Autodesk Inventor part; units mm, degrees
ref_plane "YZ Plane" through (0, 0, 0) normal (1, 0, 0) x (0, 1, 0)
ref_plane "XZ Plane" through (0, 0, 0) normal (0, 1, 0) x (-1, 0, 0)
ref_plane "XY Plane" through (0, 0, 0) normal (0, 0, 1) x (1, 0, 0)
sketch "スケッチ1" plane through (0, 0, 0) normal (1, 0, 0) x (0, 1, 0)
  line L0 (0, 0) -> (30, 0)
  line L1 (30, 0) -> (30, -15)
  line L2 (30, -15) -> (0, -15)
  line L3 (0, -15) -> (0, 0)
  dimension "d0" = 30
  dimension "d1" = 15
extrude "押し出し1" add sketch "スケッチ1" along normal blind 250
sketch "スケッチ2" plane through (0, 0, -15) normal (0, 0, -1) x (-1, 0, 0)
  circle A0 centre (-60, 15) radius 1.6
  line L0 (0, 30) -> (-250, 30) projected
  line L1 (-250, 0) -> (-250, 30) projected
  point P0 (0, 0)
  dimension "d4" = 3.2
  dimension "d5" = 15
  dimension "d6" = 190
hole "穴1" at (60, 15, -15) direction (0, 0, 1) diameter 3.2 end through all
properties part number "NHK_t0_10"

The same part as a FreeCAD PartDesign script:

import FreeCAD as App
import Part
import Sketcher
from FreeCAD import Vector


def add_polygon(sketch, points):
    """Adds a closed chain of lines whose ends are joined by coincident constraints."""
    first, n = sketch.GeometryCount, len(points)
    for a, b in zip(points, points[1:] + points[:1]):
        sketch.addGeometry(Part.LineSegment(App.Vector(*a, 0), App.Vector(*b, 0)), False)
    for i in range(n):
        sketch.addConstraint(Sketcher.Constraint("Coincident", first + i, 2, first + (i + 1) % n, 1))

doc = App.newDocument("Part")
body = doc.addObject("PartDesign::Body", "Body")

# Sketch on YZ plane
sketch1 = body.newObject("Sketcher::SketchObject", "Sketch")
sketch1.AttachmentSupport = (doc.getObject("YZ_Plane"), [""])
sketch1.MapMode = "FlatFace"
add_polygon(sketch1, [(30, 0), (0, 0), (0, -15), (30, -15)])  # lines 0-3
sketch1.addConstraint(Sketcher.Constraint("Horizontal", 0))
sketch1.addConstraint(Sketcher.Constraint("Vertical", 1))
sketch1.addConstraint(Sketcher.Constraint("Horizontal", 2))
sketch1.addConstraint(Sketcher.Constraint("Vertical", 3))
sketch1.addConstraint(Sketcher.Constraint("Coincident", 0, 2, -1, 1))
sketch1.addConstraint(Sketcher.Constraint("DistanceX", 0, 2, 0, 1, 30.0))
sketch1.addConstraint(Sketcher.Constraint("DistanceY", 1, 2, 1, 1, 15.0))
pad1 = body.newObject("PartDesign::Pad", "Pad")
pad1.Profile = sketch1
pad1.Length = 250

# Sketch on XY plane
sketch2 = body.newObject("Sketcher::SketchObject", "Sketch001")
sketch2.AttachmentSupport = (doc.getObject("XY_Plane"), [""])
sketch2.MapMode = "FlatFace"
sketch2.AttachmentOffset = App.Placement(Vector(0, 0, -15), App.Rotation())
sketch2.addGeometry(Part.Circle(Vector(60, 15, 0), Vector(0, 0, 1), 1.6), False)
sketch2.addConstraint(Sketcher.Constraint("Diameter", 0, 3.2))
sketch2.addConstraint(Sketcher.Constraint("DistanceX", -1, 1, 0, 3, 60.0))
sketch2.addConstraint(Sketcher.Constraint("DistanceY", -1, 1, 0, 3, 15.0))
doc.recompute()
hole = body.newObject("PartDesign::Hole", "Hole")
hole.Profile = sketch2
hole.ThreadType = "None"
hole.Diameter = 3.2
hole.DepthType = "ThroughAll"
hole.Reversed = True

doc.recompute()
